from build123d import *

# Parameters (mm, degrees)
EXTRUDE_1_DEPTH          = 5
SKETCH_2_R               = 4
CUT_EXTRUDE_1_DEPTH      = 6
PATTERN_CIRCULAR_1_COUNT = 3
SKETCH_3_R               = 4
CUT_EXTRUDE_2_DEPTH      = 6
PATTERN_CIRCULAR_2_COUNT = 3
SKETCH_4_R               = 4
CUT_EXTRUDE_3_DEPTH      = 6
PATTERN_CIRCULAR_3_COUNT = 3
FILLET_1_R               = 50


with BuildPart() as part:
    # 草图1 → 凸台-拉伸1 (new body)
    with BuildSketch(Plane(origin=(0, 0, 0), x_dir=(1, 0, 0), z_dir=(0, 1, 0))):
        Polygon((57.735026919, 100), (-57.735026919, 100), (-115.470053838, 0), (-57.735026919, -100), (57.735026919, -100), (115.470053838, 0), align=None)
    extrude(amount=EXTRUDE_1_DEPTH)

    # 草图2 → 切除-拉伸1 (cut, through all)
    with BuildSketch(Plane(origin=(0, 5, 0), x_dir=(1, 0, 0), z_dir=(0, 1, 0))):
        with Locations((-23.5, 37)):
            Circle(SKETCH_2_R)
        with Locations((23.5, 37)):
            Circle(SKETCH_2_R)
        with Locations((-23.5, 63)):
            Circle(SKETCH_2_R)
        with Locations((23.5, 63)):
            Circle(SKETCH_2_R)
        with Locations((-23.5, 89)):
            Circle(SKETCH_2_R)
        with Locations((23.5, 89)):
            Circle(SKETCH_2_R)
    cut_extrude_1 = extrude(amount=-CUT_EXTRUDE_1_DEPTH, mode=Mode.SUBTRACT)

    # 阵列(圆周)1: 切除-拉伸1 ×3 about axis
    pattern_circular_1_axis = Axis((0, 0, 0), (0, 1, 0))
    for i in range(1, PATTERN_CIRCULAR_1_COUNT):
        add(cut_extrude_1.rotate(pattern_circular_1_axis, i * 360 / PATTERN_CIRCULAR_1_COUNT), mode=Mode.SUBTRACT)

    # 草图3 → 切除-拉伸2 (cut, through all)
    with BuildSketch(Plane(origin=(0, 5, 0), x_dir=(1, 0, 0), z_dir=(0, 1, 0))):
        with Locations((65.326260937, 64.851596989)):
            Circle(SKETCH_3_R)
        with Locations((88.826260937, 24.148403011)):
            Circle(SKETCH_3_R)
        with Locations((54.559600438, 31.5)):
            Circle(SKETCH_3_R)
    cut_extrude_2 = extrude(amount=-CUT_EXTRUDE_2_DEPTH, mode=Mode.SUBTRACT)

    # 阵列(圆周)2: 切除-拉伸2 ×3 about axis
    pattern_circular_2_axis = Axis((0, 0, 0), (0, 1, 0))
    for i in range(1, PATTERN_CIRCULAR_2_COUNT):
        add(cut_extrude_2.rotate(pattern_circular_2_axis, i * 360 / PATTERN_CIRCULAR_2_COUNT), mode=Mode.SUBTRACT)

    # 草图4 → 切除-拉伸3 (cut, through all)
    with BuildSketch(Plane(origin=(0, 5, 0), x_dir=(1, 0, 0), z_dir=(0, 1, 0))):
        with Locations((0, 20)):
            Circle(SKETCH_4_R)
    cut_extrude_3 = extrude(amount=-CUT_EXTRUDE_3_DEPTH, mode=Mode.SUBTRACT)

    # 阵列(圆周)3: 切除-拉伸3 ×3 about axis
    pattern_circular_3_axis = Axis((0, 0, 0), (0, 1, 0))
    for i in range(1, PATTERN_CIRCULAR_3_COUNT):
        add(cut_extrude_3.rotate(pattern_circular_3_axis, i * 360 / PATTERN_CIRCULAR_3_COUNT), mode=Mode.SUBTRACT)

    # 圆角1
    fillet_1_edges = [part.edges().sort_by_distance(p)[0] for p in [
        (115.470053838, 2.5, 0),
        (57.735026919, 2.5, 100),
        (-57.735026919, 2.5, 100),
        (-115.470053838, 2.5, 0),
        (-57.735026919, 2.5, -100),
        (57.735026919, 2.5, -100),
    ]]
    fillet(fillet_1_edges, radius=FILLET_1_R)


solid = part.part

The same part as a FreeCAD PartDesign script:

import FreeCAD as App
import Part
import Sketcher
Q = App.Units.Quantity


def edges_at(feature, points):
    """Names of the edges that pass closest to the given points."""
    edges = feature.Shape.Edges
    near = lambda p: min(range(len(edges)), key=lambda i: edges[i].distToShape(Part.Vertex(*p))[0])
    return sorted({f"Edge{near(p) + 1}" for p in points})


def add_polygon(sketch, points):
    """Adds a closed chain of lines whose ends are joined by coincident constraints."""
    first, n = sketch.GeometryCount, len(points)
    for a, b in zip(points, points[1:] + points[:1]):
        sketch.addGeometry(Part.LineSegment(App.Vector(*a, 0), App.Vector(*b, 0)), False)
    for i in range(n):
        sketch.addConstraint(Sketcher.Constraint("Coincident", first + i, 2, first + (i + 1) % n, 1))

doc = App.newDocument("Part")
body = doc.addObject("PartDesign::Body", "Body")

# Sketch on XZ plane
sketch1 = doc.addObject("Sketcher::SketchObject", "Sketch")
body.addObject(sketch1)
sketch1.AttachmentSupport = (doc.XZ_Plane, [""])
sketch1.MapMode = "FlatFace"
add_polygon(sketch1, [(58, -100), (-58, -100), (-115, 0), (-58, 100), (58, 100), (115, 0)])  # lines 0-5
sketch1.addConstraint(Sketcher.Constraint("Horizontal", 0))
sketch1.addConstraint(Sketcher.Constraint("Horizontal", 3))
sketch1.addConstraint(Sketcher.Constraint("Symmetric", 0, 2, 3, 2, -1, 1))
sketch1.addConstraint(Sketcher.Constraint("Symmetric", 1, 2, 4, 2, -1, 1))
sketch1.addConstraint(Sketcher.Constraint("PointOnObject", 1, 2, -1))
sketch1.addConstraint(Sketcher.Constraint("Parallel", 2, 5))
sketch1.addConstraint(Sketcher.Constraint("Vertical", 0, 2, 2, 2))
sketch1.addConstraint(Sketcher.Constraint("Angle", 1, Q("120 deg")))
sketch1.addConstraint(Sketcher.Constraint("DistanceY", 0, 2, -1, 1, Q("100 mm")))
sketch1.addConstraint(Sketcher.Constraint("DistanceX", 0, 2, 0, 1, Q("115.470054 mm")))
pad1 = doc.addObject("PartDesign::Pad", "Pad")
body.addObject(pad1)
pad1.Profile = sketch1
pad1.Length = 5
pad1.Reversed = True

# Sketch on XZ plane
sketch2 = doc.addObject("Sketcher::SketchObject", "Sketch001")
body.addObject(sketch2)
sketch2.AttachmentSupport = (doc.XZ_Plane, [""])
sketch2.MapMode = "FlatFace"
sketch2.AttachmentOffset = App.Placement(App.Vector(0, 0, -5), App.Rotation())
sketch2.addGeometry(Part.Circle(App.Vector(-23.5, -37, 0), App.Vector(0, 0, 1), 4), False)
sketch2.addGeometry(Part.Circle(App.Vector(23.5, -37, 0), App.Vector(0, 0, 1), 4), False)
sketch2.addGeometry(Part.Circle(App.Vector(-23.5, -63, 0), App.Vector(0, 0, 1), 4), False)
sketch2.addGeometry(Part.Circle(App.Vector(23.5, -63, 0), App.Vector(0, 0, 1), 4), False)
sketch2.addGeometry(Part.Circle(App.Vector(-23.5, -89, 0), App.Vector(0, 0, 1), 4), False)
sketch2.addGeometry(Part.Circle(App.Vector(23.5, -89, 0), App.Vector(0, 0, 1), 4), False)
sketch2.addConstraint(Sketcher.Constraint("Equal", 0, 1))
sketch2.addConstraint(Sketcher.Constraint("Equal", 1, 2))
sketch2.addConstraint(Sketcher.Constraint("Equal", 2, 3))
sketch2.addConstraint(Sketcher.Constraint("Equal", 3, 4))
sketch2.addConstraint(Sketcher.Constraint("Equal", 4, 5))
sketch2.addConstraint(Sketcher.Constraint("Symmetric", 0, 3, 1, 3, -2))
sketch2.addConstraint(Sketcher.Constraint("Symmetric", 2, 3, 3, 3, -2))
sketch2.addConstraint(Sketcher.Constraint("Symmetric", 4, 3, 5, 3, -2))
sketch2.addConstraint(Sketcher.Constraint("Vertical", 0, 3, 2, 3))
sketch2.addConstraint(Sketcher.Constraint("Vertical", 2, 3, 4, 3))
sketch2.addConstraint(Sketcher.Constraint("Diameter", 0, Q("8 mm")))
sketch2.addConstraint(Sketcher.Constraint("DistanceY", 0, 3, -1, 1, Q("37 mm")))
sketch2.addConstraint(Sketcher.Constraint("DistanceY", 2, 3, -1, 1, Q("63 mm")))
sketch2.addConstraint(Sketcher.Constraint("DistanceY", 4, 3, -1, 1, Q("89 mm")))
sketch2.addConstraint(Sketcher.Constraint("DistanceX", 0, 3, 1, 3, Q("47 mm")))
pocket1 = doc.addObject("PartDesign::Pocket", "Pocket")
body.addObject(pocket1)
pocket1.Profile = sketch2
pocket1.Type = "ThroughAll"
pocket1.Reversed = True
doc.recompute()

polarpattern = doc.addObject("PartDesign::PolarPattern", "PolarPattern")
body.addObject(polarpattern)
polarpattern.Originals = [pocket1]
polarpattern.Axis = (doc.Y_Axis, [""])
polarpattern.Angle = 360
polarpattern.Occurrences = 3
body.Tip = polarpattern

# Sketch on XZ plane
sketch3 = doc.addObject("Sketcher::SketchObject", "Sketch002")
body.addObject(sketch3)
sketch3.AttachmentSupport = (doc.XZ_Plane, [""])
sketch3.MapMode = "FlatFace"
sketch3.AttachmentOffset = App.Placement(App.Vector(0, 0, -5), App.Rotation())
sketch3.addGeometry(Part.Circle(App.Vector(65.3, -64.9, 0), App.Vector(0, 0, 1), 4), False)
sketch3.addGeometry(Part.Circle(App.Vector(88.8, -24.1, 0), App.Vector(0, 0, 1), 4), False)
sketch3.addGeometry(Part.Circle(App.Vector(54.6, -31.5, 0), App.Vector(0, 0, 1), 4), False)
sketch3.addConstraint(Sketcher.Constraint("Equal", 0, 1))
sketch3.addConstraint(Sketcher.Constraint("Equal", 1, 2))
sketch3.addConstraint(Sketcher.Constraint("Diameter", 0, Q("8 mm")))
sketch3.addConstraint(Sketcher.Constraint("DistanceY", 2, 3, -1, 1, Q("31.5 mm")))
sketch3.addConstraint(Sketcher.Constraint("DistanceX", 0, 3, 1, 3, Q("23.5 mm")))
sketch3.addConstraint(Sketcher.Constraint("DistanceX", -1, 1, 2, 3, Q("54.5596 mm")))
sketch3.addConstraint(Sketcher.Constraint("DistanceX", -1, 1, 0, 3, Q("65.326261 mm")))
sketch3.addConstraint(Sketcher.Constraint("DistanceY", 0, 3, -1, 1, Q("64.851597 mm")))
sketch3.addConstraint(Sketcher.Constraint("DistanceY", 1, 3, -1, 1, Q("24.148403 mm")))
pocket2 = doc.addObject("PartDesign::Pocket", "Pocket001")
body.addObject(pocket2)
pocket2.Profile = sketch3
pocket2.Type = "ThroughAll"
pocket2.Reversed = True
doc.recompute()

polarpattern2 = doc.addObject("PartDesign::PolarPattern", "PolarPattern001")
body.addObject(polarpattern2)
polarpattern2.Originals = [pocket2]
polarpattern2.Axis = (doc.Y_Axis, [""])
polarpattern2.Angle = 360
polarpattern2.Occurrences = 3
body.Tip = polarpattern2

# Sketch on XZ plane
sketch4 = doc.addObject("Sketcher::SketchObject", "Sketch003")
body.addObject(sketch4)
sketch4.AttachmentSupport = (doc.XZ_Plane, [""])
sketch4.MapMode = "FlatFace"
sketch4.AttachmentOffset = App.Placement(App.Vector(0, 0, -5), App.Rotation())
sketch4.addGeometry(Part.Circle(App.Vector(0, -20, 0), App.Vector(0, 0, 1), 4), False)
sketch4.addConstraint(Sketcher.Constraint("PointOnObject", 0, 3, -2))
sketch4.addConstraint(Sketcher.Constraint("Diameter", 0, Q("8 mm")))
sketch4.addConstraint(Sketcher.Constraint("DistanceY", 0, 3, -1, 1, Q("20 mm")))
pocket3 = doc.addObject("PartDesign::Pocket", "Pocket002")
body.addObject(pocket3)
pocket3.Profile = sketch4
pocket3.Type = "ThroughAll"
pocket3.Reversed = True
doc.recompute()

polarpattern3 = doc.addObject("PartDesign::PolarPattern", "PolarPattern002")
body.addObject(polarpattern3)
polarpattern3.Originals = [pocket3]
polarpattern3.Axis = (doc.Y_Axis, [""])
polarpattern3.Angle = 360
polarpattern3.Occurrences = 3
body.Tip = polarpattern3
doc.recompute()

fillet = doc.addObject("PartDesign::Fillet", "Fillet")
body.addObject(fillet)
fillet.Base = (polarpattern3, edges_at(polarpattern3, [
    (115.47, 2.5, 0),
    (57.735, 2.5, 100),
    (-57.735, 2.5, 100),
    (-115.47, 2.5, 0),
    (-57.735, 2.5, -100),
    (57.735, 2.5, -100),
]))
fillet.Radius = 50

doc.recompute()
